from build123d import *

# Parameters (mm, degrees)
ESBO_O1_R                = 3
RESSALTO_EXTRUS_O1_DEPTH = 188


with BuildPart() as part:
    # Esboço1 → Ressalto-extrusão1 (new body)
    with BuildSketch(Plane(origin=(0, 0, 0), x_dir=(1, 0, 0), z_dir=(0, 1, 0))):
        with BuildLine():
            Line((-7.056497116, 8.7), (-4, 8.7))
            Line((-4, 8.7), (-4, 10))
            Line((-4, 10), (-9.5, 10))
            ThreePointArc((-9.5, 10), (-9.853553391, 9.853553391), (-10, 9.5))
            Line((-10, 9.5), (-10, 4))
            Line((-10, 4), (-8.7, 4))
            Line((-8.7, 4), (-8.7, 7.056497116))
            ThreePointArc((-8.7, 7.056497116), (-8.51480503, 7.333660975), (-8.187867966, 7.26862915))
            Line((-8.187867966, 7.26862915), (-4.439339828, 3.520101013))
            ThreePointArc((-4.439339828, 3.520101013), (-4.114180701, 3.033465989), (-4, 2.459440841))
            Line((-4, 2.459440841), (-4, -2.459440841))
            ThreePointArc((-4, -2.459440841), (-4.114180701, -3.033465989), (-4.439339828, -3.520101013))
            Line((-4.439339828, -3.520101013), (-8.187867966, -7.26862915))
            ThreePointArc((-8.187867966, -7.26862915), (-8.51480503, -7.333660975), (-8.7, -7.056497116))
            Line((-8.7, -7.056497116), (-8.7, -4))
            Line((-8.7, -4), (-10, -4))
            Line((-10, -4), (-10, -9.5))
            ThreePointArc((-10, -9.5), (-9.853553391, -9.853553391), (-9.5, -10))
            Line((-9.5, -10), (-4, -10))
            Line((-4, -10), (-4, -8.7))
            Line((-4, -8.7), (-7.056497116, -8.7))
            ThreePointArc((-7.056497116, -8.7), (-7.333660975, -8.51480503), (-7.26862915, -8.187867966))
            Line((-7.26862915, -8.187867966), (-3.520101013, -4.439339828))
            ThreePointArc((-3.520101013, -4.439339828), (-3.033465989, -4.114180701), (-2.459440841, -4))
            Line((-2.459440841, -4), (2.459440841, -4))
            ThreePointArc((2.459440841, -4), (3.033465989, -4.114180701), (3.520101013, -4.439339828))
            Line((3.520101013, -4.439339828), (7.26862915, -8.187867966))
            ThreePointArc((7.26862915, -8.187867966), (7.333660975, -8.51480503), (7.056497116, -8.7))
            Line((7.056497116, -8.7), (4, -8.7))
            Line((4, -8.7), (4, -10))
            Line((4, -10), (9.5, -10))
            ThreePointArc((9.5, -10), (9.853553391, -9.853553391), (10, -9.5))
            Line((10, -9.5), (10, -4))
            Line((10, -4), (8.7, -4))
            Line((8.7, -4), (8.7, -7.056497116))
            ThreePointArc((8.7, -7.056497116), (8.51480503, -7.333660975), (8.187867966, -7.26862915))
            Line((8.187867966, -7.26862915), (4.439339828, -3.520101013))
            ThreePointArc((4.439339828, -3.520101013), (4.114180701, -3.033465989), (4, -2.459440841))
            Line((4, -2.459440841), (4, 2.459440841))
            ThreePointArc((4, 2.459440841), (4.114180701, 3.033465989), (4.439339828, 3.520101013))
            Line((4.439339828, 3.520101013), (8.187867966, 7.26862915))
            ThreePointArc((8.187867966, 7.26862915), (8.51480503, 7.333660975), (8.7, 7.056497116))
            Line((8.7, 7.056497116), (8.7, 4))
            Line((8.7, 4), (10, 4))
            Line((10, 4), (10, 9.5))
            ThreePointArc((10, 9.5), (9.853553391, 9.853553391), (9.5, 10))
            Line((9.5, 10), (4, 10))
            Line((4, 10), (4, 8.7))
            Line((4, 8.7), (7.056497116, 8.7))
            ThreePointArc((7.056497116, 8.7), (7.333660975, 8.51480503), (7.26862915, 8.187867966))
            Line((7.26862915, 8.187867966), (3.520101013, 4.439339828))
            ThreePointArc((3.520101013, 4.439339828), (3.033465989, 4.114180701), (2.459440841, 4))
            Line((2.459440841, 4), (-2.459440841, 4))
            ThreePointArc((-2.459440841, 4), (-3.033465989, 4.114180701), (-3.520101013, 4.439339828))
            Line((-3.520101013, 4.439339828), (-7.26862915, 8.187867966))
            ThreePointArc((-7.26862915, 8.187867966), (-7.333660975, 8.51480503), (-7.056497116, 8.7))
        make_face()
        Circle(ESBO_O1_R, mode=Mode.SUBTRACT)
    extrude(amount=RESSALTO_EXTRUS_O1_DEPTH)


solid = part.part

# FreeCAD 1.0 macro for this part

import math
import FreeCAD as App
import Part
import Sketcher
from FreeCAD import Vector
Q = App.Units.Quantity

doc = App.newDocument("Part")
body = doc.addObject("PartDesign::Body", "Body")

# Sketch on XZ plane
sketch1 = body.newObject("Sketcher::SketchObject", "Sketch")
sketch1.AttachmentSupport = (doc.getObject("XZ_Plane"), [""])
sketch1.MapMode = "FlatFace"
sketch1.addGeometry(Part.LineSegment(Vector(-7.06, -8.7, 0), Vector(-4, -8.7, 0)), False)
sketch1.addGeometry(Part.LineSegment(Vector(-4, -8.7, 0), Vector(-4, -10, 0)), False)
sketch1.addGeometry(Part.LineSegment(Vector(-4, -10, 0), Vector(-9.5, -10, 0)), False)
sketch1.addGeometry(Part.ArcOfCircle(Part.Circle(Vector(-9.5, -9.5, 0), Vector(0, 0, 1), 0.5), math.radians(180), math.radians(270)), False)
sketch1.addGeometry(Part.LineSegment(Vector(-10, -9.5, 0), Vector(-10, -4, 0)), False)
sketch1.addGeometry(Part.LineSegment(Vector(-10, -4, 0), Vector(-8.7, -4, 0)), False)
sketch1.addGeometry(Part.LineSegment(Vector(-8.7, -4, 0), Vector(-8.7, -7.06, 0)), False)
sketch1.addGeometry(Part.ArcOfCircle(Part.Circle(Vector(-8.4, -7.06, 0), Vector(0, 0, 1), 0.3), math.radians(-180), math.radians(-45)), False)
sketch1.addGeometry(Part.LineSegment(Vector(-8.19, -7.27, 0), Vector(-4.44, -3.52, 0)), False)
sketch1.addGeometry(Part.ArcOfCircle(Part.Circle(Vector(-5.5, -2.46, 0), Vector(0, 0, 1), 1.5), math.radians(-45), math.radians(0)), False)
sketch1.addGeometry(Part.LineSegment(Vector(-4, -2.46, 0), Vector(-4, 2.46, 0)), False)
sketch1.addGeometry(Part.ArcOfCircle(Part.Circle(Vector(-5.5, 2.46, 0), Vector(0, 0, 1), 1.5), math.radians(0), math.radians(45)), False)
sketch1.addGeometry(Part.LineSegment(Vector(-4.44, 3.52, 0), Vector(-8.19, 7.27, 0)), False)
sketch1.addGeometry(Part.ArcOfCircle(Part.Circle(Vector(-8.4, 7.06, 0), Vector(0, 0, 1), 0.3), math.radians(45), math.radians(180)), False)
sketch1.addGeometry(Part.LineSegment(Vector(-8.7, 7.06, 0), Vector(-8.7, 4, 0)), False)
sketch1.addGeometry(Part.LineSegment(Vector(-8.7, 4, 0), Vector(-10, 4, 0)), False)
sketch1.addGeometry(Part.LineSegment(Vector(-10, 4, 0), Vector(-10, 9.5, 0)), False)
sketch1.addGeometry(Part.ArcOfCircle(Part.Circle(Vector(-9.5, 9.5, 0), Vector(0, 0, 1), 0.5), math.radians(90), math.radians(180)), False)
sketch1.addGeometry(Part.LineSegment(Vector(-9.5, 10, 0), Vector(-4, 10, 0)), False)
sketch1.addGeometry(Part.LineSegment(Vector(-4, 10, 0), Vector(-4, 8.7, 0)), False)
sketch1.addGeometry(Part.LineSegment(Vector(-4, 8.7, 0), Vector(-7.06, 8.7, 0)), False)
sketch1.addGeometry(Part.ArcOfCircle(Part.Circle(Vector(-7.06, 8.4, 0), Vector(0, 0, 1), 0.3), math.radians(90), math.radians(225)), False)
sketch1.addGeometry(Part.LineSegment(Vector(-7.27, 8.19, 0), Vector(-3.52, 4.44, 0)), False)
sketch1.addGeometry(Part.ArcOfCircle(Part.Circle(Vector(-2.46, 5.5, 0), Vector(0, 0, 1), 1.5), math.radians(-135), math.radians(-90)), False)
sketch1.addGeometry(Part.LineSegment(Vector(-2.46, 4, 0), Vector(2.46, 4, 0)), False)
sketch1.addGeometry(Part.ArcOfCircle(Part.Circle(Vector(2.46, 5.5, 0), Vector(0, 0, 1), 1.5), math.radians(-90), math.radians(-45)), False)
sketch1.addGeometry(Part.LineSegment(Vector(3.52, 4.44, 0), Vector(7.27, 8.19, 0)), False)
sketch1.addGeometry(Part.ArcOfCircle(Part.Circle(Vector(7.06, 8.4, 0), Vector(0, 0, 1), 0.3), math.radians(-45), math.radians(90)), False)
sketch1.addGeometry(Part.LineSegment(Vector(7.06, 8.7, 0), Vector(4, 8.7, 0)), False)
sketch1.addGeometry(Part.LineSegment(Vector(4, 8.7, 0), Vector(4, 10, 0)), False)
sketch1.addGeometry(Part.LineSegment(Vector(4, 10, 0), Vector(9.5, 10, 0)), False)
sketch1.addGeometry(Part.ArcOfCircle(Part.Circle(Vector(9.5, 9.5, 0), Vector(0, 0, 1), 0.5), math.radians(0), math.radians(90)), False)
sketch1.addGeometry(Part.LineSegment(Vector(10, 9.5, 0), Vector(10, 4, 0)), False)
sketch1.addGeometry(Part.LineSegment(Vector(10, 4, 0), Vector(8.7, 4, 0)), False)
sketch1.addGeometry(Part.LineSegment(Vector(8.7, 4, 0), Vector(8.7, 7.06, 0)), False)
sketch1.addGeometry(Part.ArcOfCircle(Part.Circle(Vector(8.4, 7.06, 0), Vector(0, 0, 1), 0.3), math.radians(0), math.radians(135)), False)
sketch1.addGeometry(Part.LineSegment(Vector(8.19, 7.27, 0), Vector(4.44, 3.52, 0)), False)
sketch1.addGeometry(Part.ArcOfCircle(Part.Circle(Vector(5.5, 2.46, 0), Vector(0, 0, 1), 1.5), math.radians(135), math.radians(180)), False)
sketch1.addGeometry(Part.LineSegment(Vector(4, 2.46, 0), Vector(4, -2.46, 0)), False)
sketch1.addGeometry(Part.ArcOfCircle(Part.Circle(Vector(5.5, -2.46, 0), Vector(0, 0, 1), 1.5), math.radians(180), math.radians(225)), False)
sketch1.addGeometry(Part.LineSegment(Vector(4.44, -3.52, 0), Vector(8.19, -7.27, 0)), False)
sketch1.addGeometry(Part.ArcOfCircle(Part.Circle(Vector(8.4, -7.06, 0), Vector(0, 0, 1), 0.3), math.radians(-135), math.radians(0)), False)
sketch1.addGeometry(Part.LineSegment(Vector(8.7, -7.06, 0), Vector(8.7, -4, 0)), False)
sketch1.addGeometry(Part.LineSegment(Vector(8.7, -4, 0), Vector(10, -4, 0)), False)
sketch1.addGeometry(Part.LineSegment(Vector(10, -4, 0), Vector(10, -9.5, 0)), False)
sketch1.addGeometry(Part.ArcOfCircle(Part.Circle(Vector(9.5, -9.5, 0), Vector(0, 0, 1), 0.5), math.radians(-90), math.radians(0)), False)
sketch1.addGeometry(Part.LineSegment(Vector(9.5, -10, 0), Vector(4, -10, 0)), False)
sketch1.addGeometry(Part.LineSegment(Vector(4, -10, 0), Vector(4, -8.7, 0)), False)
sketch1.addGeometry(Part.LineSegment(Vector(4, -8.7, 0), Vector(7.06, -8.7, 0)), False)
sketch1.addGeometry(Part.ArcOfCircle(Part.Circle(Vector(7.06, -8.4, 0), Vector(0, 0, 1), 0.3), math.radians(-90), math.radians(45)), False)
sketch1.addGeometry(Part.LineSegment(Vector(7.27, -8.19, 0), Vector(3.52, -4.44, 0)), False)
sketch1.addGeometry(Part.ArcOfCircle(Part.Circle(Vector(2.46, -5.5, 0), Vector(0, 0, 1), 1.5), math.radians(45), math.radians(90)), False)
sketch1.addGeometry(Part.LineSegment(Vector(2.46, -4, 0), Vector(-2.46, -4, 0)), False)
sketch1.addGeometry(Part.ArcOfCircle(Part.Circle(Vector(-2.46, -5.5, 0), Vector(0, 0, 1), 1.5), math.radians(90), math.radians(135)), False)
sketch1.addGeometry(Part.LineSegment(Vector(-3.52, -4.44, 0), Vector(-7.27, -8.19, 0)), False)
sketch1.addGeometry(Part.ArcOfCircle(Part.Circle(Vector(-7.06, -8.4, 0), Vector(0, 0, 1), 0.3), math.radians(135), math.radians(270)), False)
sketch1.addGeometry(Part.Circle(Vector(0, 0, 0), Vector(0, 0, 1), 3), False)
sketch1.addConstraint(Sketcher.Constraint("Coincident", 0, 2, 1, 1))
sketch1.addConstraint(Sketcher.Constraint("Coincident", 1, 2, 2, 1))
sketch1.addConstraint(Sketcher.Constraint("Tangent", 2, 2, 3, 2))
sketch1.addConstraint(Sketcher.Constraint("Tangent", 3, 1, 4, 1))
sketch1.addConstraint(Sketcher.Constraint("Coincident", 4, 2, 5, 1))
sketch1.addConstraint(Sketcher.Constraint("Coincident", 5, 2, 6, 1))
sketch1.addConstraint(Sketcher.Constraint("Tangent", 6, 2, 7, 1))
sketch1.addConstraint(Sketcher.Constraint("Tangent", 7, 2, 8, 1))
sketch1.addConstraint(Sketcher.Constraint("Tangent", 8, 2, 9, 1))
sketch1.addConstraint(Sketcher.Constraint("Tangent", 9, 2, 10, 1))
sketch1.addConstraint(Sketcher.Constraint("Tangent", 10, 2, 11, 1))
sketch1.addConstraint(Sketcher.Constraint("Tangent", 11, 2, 12, 1))
sketch1.addConstraint(Sketcher.Constraint("Tangent", 12, 2, 13, 1))
sketch1.addConstraint(Sketcher.Constraint("Tangent", 13, 2, 14, 1))
sketch1.addConstraint(Sketcher.Constraint("Coincident", 14, 2, 15, 1))
sketch1.addConstraint(Sketcher.Constraint("Coincident", 15, 2, 16, 1))
sketch1.addConstraint(Sketcher.Constraint("Tangent", 16, 2, 17, 2))
sketch1.addConstraint(Sketcher.Constraint("Tangent", 17, 1, 18, 1))
sketch1.addConstraint(Sketcher.Constraint("Coincident", 18, 2, 19, 1))
sketch1.addConstraint(Sketcher.Constraint("Coincident", 19, 2, 20, 1))
sketch1.addConstraint(Sketcher.Constraint("Tangent", 20, 2, 21, 1))
sketch1.addConstraint(Sketcher.Constraint("Tangent", 21, 2, 22, 1))
sketch1.addConstraint(Sketcher.Constraint("Tangent", 22, 2, 23, 1))
sketch1.addConstraint(Sketcher.Constraint("Tangent", 23, 2, 24, 1))
sketch1.addConstraint(Sketcher.Constraint("Tangent", 24, 2, 25, 1))
sketch1.addConstraint(Sketcher.Constraint("Tangent", 25, 2, 26, 1))
sketch1.addConstraint(Sketcher.Constraint("Tangent", 26, 2, 27, 1))
sketch1.addConstraint(Sketcher.Constraint("Tangent", 27, 2, 28, 1))
sketch1.addConstraint(Sketcher.Constraint("Coincident", 28, 2, 29, 1))
sketch1.addConstraint(Sketcher.Constraint("Coincident", 29, 2, 30, 1))
sketch1.addConstraint(Sketcher.Constraint("Tangent", 30, 2, 31, 2))
sketch1.addConstraint(Sketcher.Constraint("Tangent", 31, 1, 32, 1))
sketch1.addConstraint(Sketcher.Constraint("Coincident", 32, 2, 33, 1))
sketch1.addConstraint(Sketcher.Constraint("Coincident", 33, 2, 34, 1))
sketch1.addConstraint(Sketcher.Constraint("Tangent", 34, 2, 35, 1))
sketch1.addConstraint(Sketcher.Constraint("Tangent", 35, 2, 36, 1))
sketch1.addConstraint(Sketcher.Constraint("Tangent", 36, 2, 37, 1))
sketch1.addConstraint(Sketcher.Constraint("Tangent", 37, 2, 38, 1))
sketch1.addConstraint(Sketcher.Constraint("Tangent", 38, 2, 39, 1))
sketch1.addConstraint(Sketcher.Constraint("Tangent", 39, 2, 40, 1))
sketch1.addConstraint(Sketcher.Constraint("Tangent", 40, 2, 41, 1))
sketch1.addConstraint(Sketcher.Constraint("Tangent", 41, 2, 42, 1))
sketch1.addConstraint(Sketcher.Constraint("Coincident", 42, 2, 43, 1))
sketch1.addConstraint(Sketcher.Constraint("Coincident", 43, 2, 44, 1))
sketch1.addConstraint(Sketcher.Constraint("Tangent", 44, 2, 45, 2))
sketch1.addConstraint(Sketcher.Constraint("Tangent", 45, 1, 46, 1))
sketch1.addConstraint(Sketcher.Constraint("Coincident", 46, 2, 47, 1))
sketch1.addConstraint(Sketcher.Constraint("Coincident", 47, 2, 48, 1))
sketch1.addConstraint(Sketcher.Constraint("Tangent", 48, 2, 49, 1))
sketch1.addConstraint(Sketcher.Constraint("Tangent", 49, 2, 50, 1))
sketch1.addConstraint(Sketcher.Constraint("Tangent", 50, 2, 51, 1))
sketch1.addConstraint(Sketcher.Constraint("Tangent", 51, 2, 52, 1))
sketch1.addConstraint(Sketcher.Constraint("Tangent", 52, 2, 53, 1))
sketch1.addConstraint(Sketcher.Constraint("Tangent", 53, 2, 54, 1))
sketch1.addConstraint(Sketcher.Constraint("Tangent", 54, 2, 55, 1))
sketch1.addConstraint(Sketcher.Constraint("Tangent", 55, 2, 0, 1))
sketch1.addConstraint(Sketcher.Constraint("Horizontal", 0))
sketch1.addConstraint(Sketcher.Constraint("Vertical", 1))
sketch1.addConstraint(Sketcher.Constraint("Horizontal", 2))
sketch1.addConstraint(Sketcher.Constraint("Vertical", 4))
sketch1.addConstraint(Sketcher.Constraint("Horizontal", 5))
sketch1.addConstraint(Sketcher.Constraint("Vertical", 6))
sketch1.addConstraint(Sketcher.Constraint("Vertical", 10))
sketch1.addConstraint(Sketcher.Constraint("Vertical", 14))
sketch1.addConstraint(Sketcher.Constraint("Horizontal", 15))
sketch1.addConstraint(Sketcher.Constraint("Vertical", 16))
sketch1.addConstraint(Sketcher.Constraint("Horizontal", 18))
sketch1.addConstraint(Sketcher.Constraint("Vertical", 19))
sketch1.addConstraint(Sketcher.Constraint("Horizontal", 20))
sketch1.addConstraint(Sketcher.Constraint("Horizontal", 24))
sketch1.addConstraint(Sketcher.Constraint("Horizontal", 28))
sketch1.addConstraint(Sketcher.Constraint("Vertical", 29))
sketch1.addConstraint(Sketcher.Constraint("Horizontal", 30))
sketch1.addConstraint(Sketcher.Constraint("Vertical", 32))
sketch1.addConstraint(Sketcher.Constraint("Horizontal", 33))
sketch1.addConstraint(Sketcher.Constraint("Vertical", 34))
sketch1.addConstraint(Sketcher.Constraint("Vertical", 38))
sketch1.addConstraint(Sketcher.Constraint("Vertical", 42))
sketch1.addConstraint(Sketcher.Constraint("Horizontal", 43))
sketch1.addConstraint(Sketcher.Constraint("Vertical", 44))
sketch1.addConstraint(Sketcher.Constraint("Horizontal", 46))
sketch1.addConstraint(Sketcher.Constraint("Vertical", 47))
sketch1.addConstraint(Sketcher.Constraint("Horizontal", 48))
sketch1.addConstraint(Sketcher.Constraint("Horizontal", 52))
sketch1.addConstraint(Sketcher.Constraint("Coincident", 56, 3, -1, 1))
sketch1.addConstraint(Sketcher.Constraint("Equal", 9, 11))
sketch1.addConstraint(Sketcher.Constraint("Equal", 7, 13))
sketch1.addConstraint(Sketcher.Constraint("Equal", 3, 17))
sketch1.addConstraint(Sketcher.Constraint("Equal", 13, 21))
sketch1.addConstraint(Sketcher.Constraint("Equal", 11, 23))
sketch1.addConstraint(Sketcher.Constraint("Equal", 23, 25))
sketch1.addConstraint(Sketcher.Constraint("Equal", 21, 27))
sketch1.addConstraint(Sketcher.Constraint("Equal", 17, 31))
sketch1.addConstraint(Sketcher.Constraint("Equal", 27, 35))
sketch1.addConstraint(Sketcher.Constraint("Equal", 25, 37))
sketch1.addConstraint(Sketcher.Constraint("Equal", 37, 39))
sketch1.addConstraint(Sketcher.Constraint("Equal", 35, 41))
sketch1.addConstraint(Sketcher.Constraint("Equal", 31, 45))
sketch1.addConstraint(Sketcher.Constraint("Equal", 41, 49))
sketch1.addConstraint(Sketcher.Constraint("Equal", 39, 51))
sketch1.addConstraint(Sketcher.Constraint("Equal", 51, 53))
sketch1.addConstraint(Sketcher.Constraint("Equal", 49, 55))
sketch1.addConstraint(Sketcher.Constraint("Symmetric", 3, 3, 31, 3, -1, 1))
sketch1.addConstraint(Sketcher.Constraint("Symmetric", 7, 3, 35, 3, -1, 1))
sketch1.addConstraint(Sketcher.Constraint("Symmetric", 9, 3, 37, 3, -1, 1))
sketch1.addConstraint(Sketcher.Constraint("Symmetric", 13, 3, 41, 3, -1, 1))
sketch1.addConstraint(Sketcher.Constraint("Symmetric", 17, 3, 45, 3, -1, 1))
sketch1.addConstraint(Sketcher.Constraint("Symmetric", 21, 3, 49, 3, -1, 1))
sketch1.addConstraint(Sketcher.Constraint("Symmetric", 23, 3, 51, 3, -1, 1))
sketch1.addConstraint(Sketcher.Constraint("Symmetric", 27, 3, 55, 3, -1, 1))
sketch1.addConstraint(Sketcher.Constraint("Symmetric", 21, 3, 27, 3, -2))
sketch1.addConstraint(Sketcher.Constraint("Symmetric", 17, 3, 31, 3, -2))
sketch1.addConstraint(Sketcher.Constraint("Symmetric", 13, 3, 35, 3, -2))
sketch1.addConstraint(Sketcher.Constraint("Perpendicular", 8, 12))
sketch1.addConstraint(Sketcher.Constraint("Parallel", 12, 22))
sketch1.addConstraint(Sketcher.Constraint("Perpendicular", 22, 26))
sketch1.addConstraint(Sketcher.Constraint("Perpendicular", 36, 40))
sketch1.addConstraint(Sketcher.Constraint("Perpendicular", 50, 54))
sketch1.addConstraint(Sketcher.Constraint("Horizontal", 11, 3, 37, 3))
sketch1.addConstraint(Sketcher.Constraint("Horizontal", 15, 2, 23, 2))
sketch1.addConstraint(Sketcher.Constraint("Horizontal", 24, 2, 32, 2))
sketch1.addConstraint(Sketcher.Constraint("Horizontal", 5, 2, 42, 2))
sketch1.addConstraint(Sketcher.Constraint("Horizontal", 43, 2, 51, 2))
sketch1.addConstraint(Sketcher.Constraint("Vertical", 1, 2, 9, 2))
sketch1.addConstraint(Sketcher.Constraint("Vertical", 10, 2, 18, 2))
sketch1.addConstraint(Sketcher.Constraint("Vertical", 29, 2, 37, 2))
sketch1.addConstraint(Sketcher.Constraint("Vertical", 38, 2, 46, 2))
sketch1.addConstraint(Sketcher.Constraint("Equal", 43, 1))
sketch1.addConstraint(Sketcher.Constraint("Equal", 46, 4))
sketch1.addConstraint(Sketcher.Constraint("Equal", 48, 6))
sketch1.addConstraint(Sketcher.Constraint("Equal", 52, 10))
sketch1.addConstraint(Sketcher.Constraint("Diameter", 56, Q("6 mm")))
sketch1.addConstraint(Sketcher.Constraint("Radius", 3, Q("0.5 mm")))
sketch1.addConstraint(Sketcher.Constraint("Radius", 7, Q("0.3 mm")))
sketch1.addConstraint(Sketcher.Constraint("Radius", 9, Q("1.5 mm")))
sketch1.addConstraint(Sketcher.Constraint("DistanceX", 2, 2, 2, 1, Q("5.5 mm")))
sketch1.addConstraint(Sketcher.Constraint("DistanceX", 5, 1, 5, 2, Q("1.3 mm")))
sketch1.addConstraint(Sketcher.Constraint("DistanceX", 0, 2, -1, 1, Q("4 mm")))
sketch1.addConstraint(Sketcher.Constraint("DistanceX", 24, 1, 24, 2, Q("4.918882 mm")))
pad1 = body.newObject("PartDesign::Pad", "Pad")
pad1.Profile = sketch1
pad1.Length = 188
pad1.Reversed = True

doc.recompute()
